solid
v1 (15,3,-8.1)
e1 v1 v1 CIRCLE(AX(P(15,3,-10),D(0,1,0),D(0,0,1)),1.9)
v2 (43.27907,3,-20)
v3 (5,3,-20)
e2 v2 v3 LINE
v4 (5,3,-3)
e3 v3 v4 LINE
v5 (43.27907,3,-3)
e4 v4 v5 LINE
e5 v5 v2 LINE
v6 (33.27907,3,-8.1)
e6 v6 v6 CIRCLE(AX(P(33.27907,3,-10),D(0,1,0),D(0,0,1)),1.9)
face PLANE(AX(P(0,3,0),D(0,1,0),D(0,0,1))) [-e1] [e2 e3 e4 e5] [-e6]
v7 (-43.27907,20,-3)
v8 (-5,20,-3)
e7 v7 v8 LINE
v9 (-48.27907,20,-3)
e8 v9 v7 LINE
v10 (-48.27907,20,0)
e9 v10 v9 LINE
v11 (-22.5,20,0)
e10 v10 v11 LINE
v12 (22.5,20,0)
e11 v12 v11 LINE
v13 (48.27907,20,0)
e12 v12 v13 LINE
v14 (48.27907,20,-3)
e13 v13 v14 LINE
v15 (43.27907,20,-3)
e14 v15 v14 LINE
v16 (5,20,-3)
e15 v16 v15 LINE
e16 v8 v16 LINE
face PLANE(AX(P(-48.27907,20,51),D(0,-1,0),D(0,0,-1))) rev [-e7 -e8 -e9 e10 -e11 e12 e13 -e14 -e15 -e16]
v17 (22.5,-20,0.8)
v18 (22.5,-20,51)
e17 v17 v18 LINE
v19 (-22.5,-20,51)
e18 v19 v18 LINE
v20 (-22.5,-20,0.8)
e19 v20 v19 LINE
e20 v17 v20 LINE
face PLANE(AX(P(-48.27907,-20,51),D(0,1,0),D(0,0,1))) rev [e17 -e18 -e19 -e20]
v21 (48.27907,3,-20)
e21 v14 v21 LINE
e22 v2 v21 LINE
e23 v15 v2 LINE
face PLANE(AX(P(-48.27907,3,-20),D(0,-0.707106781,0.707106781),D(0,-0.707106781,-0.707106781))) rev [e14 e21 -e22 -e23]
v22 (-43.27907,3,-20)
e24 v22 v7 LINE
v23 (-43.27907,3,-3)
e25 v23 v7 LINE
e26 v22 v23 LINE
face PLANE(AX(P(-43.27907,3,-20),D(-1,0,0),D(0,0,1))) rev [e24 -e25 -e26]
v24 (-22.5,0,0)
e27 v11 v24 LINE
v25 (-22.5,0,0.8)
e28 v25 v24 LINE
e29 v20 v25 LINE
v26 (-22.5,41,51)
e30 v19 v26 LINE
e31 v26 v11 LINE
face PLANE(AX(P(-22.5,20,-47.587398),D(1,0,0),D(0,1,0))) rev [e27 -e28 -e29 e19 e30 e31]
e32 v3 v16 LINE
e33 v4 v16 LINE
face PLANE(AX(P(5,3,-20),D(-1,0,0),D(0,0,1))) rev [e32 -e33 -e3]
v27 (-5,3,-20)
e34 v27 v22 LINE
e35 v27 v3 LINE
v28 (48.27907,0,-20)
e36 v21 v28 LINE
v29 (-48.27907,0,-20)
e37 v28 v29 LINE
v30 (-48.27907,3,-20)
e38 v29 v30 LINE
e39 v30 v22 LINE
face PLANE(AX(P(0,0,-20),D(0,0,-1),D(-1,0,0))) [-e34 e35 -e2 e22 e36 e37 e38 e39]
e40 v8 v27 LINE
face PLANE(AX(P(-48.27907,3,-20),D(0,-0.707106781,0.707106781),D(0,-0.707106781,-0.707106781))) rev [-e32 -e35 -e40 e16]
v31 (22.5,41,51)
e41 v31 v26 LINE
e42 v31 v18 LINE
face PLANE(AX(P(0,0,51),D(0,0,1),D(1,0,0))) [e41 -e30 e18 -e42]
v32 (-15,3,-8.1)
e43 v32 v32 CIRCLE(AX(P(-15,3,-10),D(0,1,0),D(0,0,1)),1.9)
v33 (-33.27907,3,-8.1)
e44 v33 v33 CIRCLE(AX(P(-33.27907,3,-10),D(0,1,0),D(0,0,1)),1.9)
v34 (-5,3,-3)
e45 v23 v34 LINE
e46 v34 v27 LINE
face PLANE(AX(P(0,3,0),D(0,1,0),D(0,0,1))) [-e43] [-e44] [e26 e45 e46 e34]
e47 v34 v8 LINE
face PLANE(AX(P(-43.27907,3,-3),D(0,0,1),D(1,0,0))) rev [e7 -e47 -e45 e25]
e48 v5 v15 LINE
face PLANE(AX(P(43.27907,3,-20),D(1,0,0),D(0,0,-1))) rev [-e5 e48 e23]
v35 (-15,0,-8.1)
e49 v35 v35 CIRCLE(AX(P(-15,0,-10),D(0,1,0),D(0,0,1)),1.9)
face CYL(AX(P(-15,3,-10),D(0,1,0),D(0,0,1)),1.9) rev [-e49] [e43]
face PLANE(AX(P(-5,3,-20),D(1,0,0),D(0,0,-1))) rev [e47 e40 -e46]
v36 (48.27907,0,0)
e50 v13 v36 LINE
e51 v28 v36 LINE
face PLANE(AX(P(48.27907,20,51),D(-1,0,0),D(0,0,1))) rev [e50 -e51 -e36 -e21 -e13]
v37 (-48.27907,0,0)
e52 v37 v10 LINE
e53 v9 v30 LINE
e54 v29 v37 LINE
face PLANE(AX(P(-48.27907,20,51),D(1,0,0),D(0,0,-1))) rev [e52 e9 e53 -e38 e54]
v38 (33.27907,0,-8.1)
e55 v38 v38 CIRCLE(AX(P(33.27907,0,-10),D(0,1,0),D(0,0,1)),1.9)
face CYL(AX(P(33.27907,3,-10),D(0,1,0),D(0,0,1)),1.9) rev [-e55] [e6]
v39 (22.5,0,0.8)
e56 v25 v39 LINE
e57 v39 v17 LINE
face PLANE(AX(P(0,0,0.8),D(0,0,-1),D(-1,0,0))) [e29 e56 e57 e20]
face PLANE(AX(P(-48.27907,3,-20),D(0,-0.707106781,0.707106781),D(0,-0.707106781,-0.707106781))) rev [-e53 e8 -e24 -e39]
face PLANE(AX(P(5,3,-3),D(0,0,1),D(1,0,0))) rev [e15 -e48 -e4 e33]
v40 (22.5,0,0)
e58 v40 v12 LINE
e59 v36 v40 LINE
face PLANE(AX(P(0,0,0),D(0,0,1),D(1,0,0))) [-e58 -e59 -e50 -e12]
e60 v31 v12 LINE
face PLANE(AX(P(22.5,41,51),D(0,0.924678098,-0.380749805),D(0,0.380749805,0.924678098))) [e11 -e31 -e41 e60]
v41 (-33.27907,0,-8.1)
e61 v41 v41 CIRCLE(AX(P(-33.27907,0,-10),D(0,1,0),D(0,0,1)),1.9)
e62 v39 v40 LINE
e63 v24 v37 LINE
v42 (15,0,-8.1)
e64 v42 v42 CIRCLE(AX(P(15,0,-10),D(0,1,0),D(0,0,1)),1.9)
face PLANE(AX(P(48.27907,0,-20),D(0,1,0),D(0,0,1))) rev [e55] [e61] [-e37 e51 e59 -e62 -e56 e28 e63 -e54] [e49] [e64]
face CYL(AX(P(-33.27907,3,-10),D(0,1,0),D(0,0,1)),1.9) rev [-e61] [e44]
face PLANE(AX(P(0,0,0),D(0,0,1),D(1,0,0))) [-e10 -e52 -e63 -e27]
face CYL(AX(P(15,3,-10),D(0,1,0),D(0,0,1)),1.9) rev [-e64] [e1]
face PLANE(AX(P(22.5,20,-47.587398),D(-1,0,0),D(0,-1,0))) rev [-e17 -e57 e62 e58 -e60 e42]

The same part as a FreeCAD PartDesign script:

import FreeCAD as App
import Part
import Sketcher

V = App.Vector
Q = App.Units.Quantity


def add_polygon(sketch, points):
    """Adds a closed chain of lines whose ends are joined by coincident constraints."""
    first, n = sketch.GeometryCount, len(points)
    for a, b in zip(points, points[1:] + points[:1]):
        sketch.addGeometry(Part.LineSegment(App.Vector(*a, 0), App.Vector(*b, 0)), False)
    for i in range(n):
        sketch.addConstraint(Sketcher.Constraint("Coincident", first + i, 2, first + (i + 1) % n, 1))

doc = App.newDocument("Part")
params = doc.addObject("Spreadsheet::Sheet", "Params")
for row, (alias, value) in enumerate([
    ("sketch1_height", "40 mm"),
    ("pad1_length", "51 mm"),
    ("sketch2_height", "20 mm"),
    ("pad2_length", "20 mm"),
    ("sketch3_height", "17 mm"),
    ("pocket1_length", "17 mm"),
    ("sketch4_width", "17 mm"),
    ("sketch5_diameter", "3.8 mm"),
    ("hole_diameter", "3.8 mm"),
    ("hole_depth", "10.1 mm"),
    ("sketch6_height", "40 mm"),
    ("pocket3_length", "51 mm"),
    ("sketch7_width", "21 mm"),
    ("sketch7_height", "51 mm"),
    ("pad3_length", "45 mm"),
    ("sketch8_width", "45 mm"),
    ("sketch8_height", "20 mm"),
    ("pocket4_length", "0.8 mm"),
], start=1):
    params.set(f"A{row}", alias)
    params.set(f"B{row}", "=" + value)
    params.setAlias(f"B{row}", alias)

body = doc.addObject("PartDesign::Body", "Body")

sketch1 = doc.addObject("Sketcher::SketchObject", "Sketch")
body.addObject(sketch1)
sketch1.AttachmentSupport = (doc.XY_Plane, [""])
sketch1.MapMode = "FlatFace"
add_polygon(sketch1, [(-48, 20), (-48, -20), (48, -20), (48, 20)])
sketch1.addConstraint(Sketcher.Constraint("Vertical", 0))
sketch1.addConstraint(Sketcher.Constraint("Horizontal", 1))
sketch1.addConstraint(Sketcher.Constraint("Vertical", 2))
sketch1.addConstraint(Sketcher.Constraint("Horizontal", 3))
sketch1.addConstraint(Sketcher.Constraint("Symmetric", 0, 2, 2, 2, -1, 1))
sketch1.addConstraint(Sketcher.Constraint("DistanceY", 0, 2, 0, 1, Q("40 mm")))
sketch1.addConstraint(Sketcher.Constraint("DistanceX", 1, 1, 1, 2, Q("96.55814 mm")))
sketch1.setExpression("Constraints[9]", "Params.sketch1_height")
pad1 = doc.addObject("PartDesign::Pad", "Pad")
body.addObject(pad1)
pad1.Profile = sketch1
pad1.setExpression("Length", "Params.pad1_length")

sketch2 = doc.addObject("Sketcher::SketchObject", "Sketch001")
body.addObject(sketch2)
sketch2.AttachmentSupport = (doc.XY_Plane, [""])
sketch2.MapMode = "FlatFace"
add_polygon(sketch2, [(48, 20), (48, 0), (-48, 0), (-48, 20)])
sketch2.addConstraint(Sketcher.Constraint("Vertical", 0))
sketch2.addConstraint(Sketcher.Constraint("Horizontal", 1))
sketch2.addConstraint(Sketcher.Constraint("Vertical", 2))
sketch2.addConstraint(Sketcher.Constraint("Horizontal", 3))
sketch2.addConstraint(Sketcher.Constraint("Symmetric", 0, 2, 1, 2, -1, 1))
sketch2.addConstraint(Sketcher.Constraint("DistanceY", 0, 2, 0, 1, Q("20 mm")))
sketch2.addConstraint(Sketcher.Constraint("DistanceX", 1, 2, 1, 1, Q("96.55814 mm")))
sketch2.setExpression("Constraints[9]", "Params.sketch2_height")
pad2 = doc.addObject("PartDesign::Pad", "Pad001")
body.addObject(pad2)
pad2.Profile = sketch2
pad2.setExpression("Length", "Params.pad2_length")
pad2.Reversed = True

sketch3 = doc.addObject("Sketcher::SketchObject", "Sketch002")
body.addObject(sketch3)
sketch3.AttachmentSupport = (doc.XZ_Plane, [""])
sketch3.MapMode = "FlatFace"
sketch3.AttachmentOffset = App.Placement(V(0, 0, -20), App.Rotation())
add_polygon(sketch3, [(-43, -20), (-43, -3), (-5, -3), (-5, -20)])
add_polygon(sketch3, [(5, -20), (5, -3), (43, -3), (43, -20)])
sketch3.addConstraint(Sketcher.Constraint("Vertical", 0))
sketch3.addConstraint(Sketcher.Constraint("Horizontal", 1))
sketch3.addConstraint(Sketcher.Constraint("Vertical", 2))
sketch3.addConstraint(Sketcher.Constraint("Horizontal", 3))
sketch3.addConstraint(Sketcher.Constraint("Vertical", 4))
sketch3.addConstraint(Sketcher.Constraint("Horizontal", 5))
sketch3.addConstraint(Sketcher.Constraint("Vertical", 6))
sketch3.addConstraint(Sketcher.Constraint("Horizontal", 7))
sketch3.addConstraint(Sketcher.Constraint("Symmetric", 1, 2, 4, 2, -2))
sketch3.addConstraint(Sketcher.Constraint("Symmetric", 3, 2, 6, 2, -2))
sketch3.addConstraint(Sketcher.Constraint("DistanceY", 0, 1, 0, 2, Q("17 mm")))
sketch3.addConstraint(Sketcher.Constraint("DistanceY", 0, 2, -1, 1, Q("3 mm")))
sketch3.addConstraint(Sketcher.Constraint("DistanceX", 1, 2, -1, 1, Q("5 mm")))
sketch3.addConstraint(Sketcher.Constraint("DistanceX", 1, 1, 1, 2, Q("38.27907 mm")))
sketch3.setExpression("Constraints[18]", "Params.sketch3_height")
pocket1 = doc.addObject("PartDesign::Pocket", "Pocket")
body.addObject(pocket1)
pocket1.Profile = sketch3
pocket1.setExpression("Length", "Params.pocket1_length")
pocket1.Reversed = True

sketch4 = doc.addObject("Sketcher::SketchObject", "Sketch003")
body.addObject(sketch4)
sketch4.AttachmentSupport = (doc.YZ_Plane, [""])
sketch4.MapMode = "FlatFace"
sketch4.AttachmentOffset = App.Placement(V(0, 0, 48.27907), App.Rotation())
add_polygon(sketch4, [(20, -20), (20, -3), (3, -20)])
sketch4.addConstraint(Sketcher.Constraint("Vertical", 0))
sketch4.addConstraint(Sketcher.Constraint("Horizontal", 2))
sketch4.addConstraint(Sketcher.Constraint("Equal", 2, 0))
sketch4.addConstraint(Sketcher.Constraint("DistanceX", 2, 1, 2, 2, Q("17 mm")))
sketch4.addConstraint(Sketcher.Constraint("DistanceX", -1, 1, 0, 2, Q("20 mm")))
sketch4.addConstraint(Sketcher.Constraint("DistanceY", 0, 2, -1, 1, Q("3 mm")))
sketch4.setExpression("Constraints[6]", "Params.sketch4_width")
pocket2 = doc.addObject("PartDesign::Pocket", "Pocket001")
body.addObject(pocket2)
pocket2.Profile = sketch4
pocket2.Type = "ThroughAll"

sketch5 = doc.addObject("Sketcher::SketchObject", "Sketch004")
body.addObject(sketch5)
sketch5.AttachmentSupport = (doc.XZ_Plane, [""])
sketch5.MapMode = "FlatFace"
sketch5.AttachmentOffset = App.Placement(V(0, 0, -3), App.Rotation())
sketch5.addGeometry(Part.Circle(V(-33.3, -10, 0), V(0, 0, 1), 1.9), False)
sketch5.addGeometry(Part.Circle(V(-15, -10, 0), V(0, 0, 1), 1.9), False)
sketch5.addGeometry(Part.Circle(V(15, -10, 0), V(0, 0, 1), 1.9), False)
sketch5.addGeometry(Part.Circle(V(33.3, -10, 0), V(0, 0, 1), 1.9), False)
sketch5.addConstraint(Sketcher.Constraint("Equal", 0, 1))
sketch5.addConstraint(Sketcher.Constraint("Equal", 1, 2))
sketch5.addConstraint(Sketcher.Constraint("Equal", 2, 3))
sketch5.addConstraint(Sketcher.Constraint("Symmetric", 1, 3, 2, 3, -2))
sketch5.addConstraint(Sketcher.Constraint("Symmetric", 0, 3, 3, 3, -2))
sketch5.addConstraint(Sketcher.Constraint("Horizontal", 0, 3, 1, 3))
sketch5.addConstraint(Sketcher.Constraint("Diameter", 0, Q("3.8 mm")))
sketch5.addConstraint(Sketcher.Constraint("DistanceY", 0, 3, -1, 1, Q("10 mm")))
sketch5.addConstraint(Sketcher.Constraint("DistanceX", 1, 3, -1, 1, Q("15 mm")))
sketch5.addConstraint(Sketcher.Constraint("DistanceX", 0, 3, -1, 1, Q("33.27907 mm")))
sketch5.setExpression("Constraints[6]", "Params.sketch5_diameter")
doc.recompute()
hole = doc.addObject("PartDesign::Hole", "Hole")
body.addObject(hole)
hole.Profile = sketch5
hole.ThreadType = "None"
hole.setExpression("Diameter", "Params.hole_diameter")
hole.DepthType = "Dimension"
hole.setExpression("Depth", "Params.hole_depth")
hole.DrillPoint = "Angled"
hole.DrillPointAngle = 118
hole.Reversed = True

sketch6 = doc.addObject("Sketcher::SketchObject", "Sketch005")
body.addObject(sketch6)
sketch6.AttachmentSupport = (doc.XY_Plane, [""])
sketch6.MapMode = "FlatFace"
sketch6.AttachmentOffset = App.Placement(V(0, 0, 51), App.Rotation())
add_polygon(sketch6, [(-48, 20), (-48, -20), (-23, -20), (-23, 20)])
add_polygon(sketch6, [(23, 20), (23, -20), (48, -20), (48, 20)])
sketch6.addConstraint(Sketcher.Constraint("Vertical", 0))
sketch6.addConstraint(Sketcher.Constraint("Horizontal", 1))
sketch6.addConstraint(Sketcher.Constraint("Vertical", 2))
sketch6.addConstraint(Sketcher.Constraint("Horizontal", 3))
sketch6.addConstraint(Sketcher.Constraint("Vertical", 4))
sketch6.addConstraint(Sketcher.Constraint("Horizontal", 5))
sketch6.addConstraint(Sketcher.Constraint("Vertical", 6))
sketch6.addConstraint(Sketcher.Constraint("Horizontal", 7))
sketch6.addConstraint(Sketcher.Constraint("Symmetric", 2, 2, 4, 2, -1, 1))
sketch6.addConstraint(Sketcher.Constraint("Symmetric", 0, 2, 6, 2, -1, 1))
sketch6.addConstraint(Sketcher.Constraint("Horizontal", 1, 2, 4, 2))
sketch6.addConstraint(Sketcher.Constraint("DistanceY", 0, 2, 0, 1, Q("40 mm")))
sketch6.addConstraint(Sketcher.Constraint("DistanceX", 1, 2, 4, 2, Q("45 mm")))
sketch6.addConstraint(Sketcher.Constraint("DistanceX", 1, 1, 1, 2, Q("25.77907 mm")))
sketch6.setExpression("Constraints[19]", "Params.sketch6_height")
pocket3 = doc.addObject("PartDesign::Pocket", "Pocket002")
body.addObject(pocket3)
pocket3.Profile = sketch6
pocket3.setExpression("Length", "Params.pocket3_length")

sketch7 = doc.addObject("Sketcher::SketchObject", "Sketch006")
body.addObject(sketch7)
sketch7.AttachmentSupport = (doc.YZ_Plane, [""])
sketch7.MapMode = "FlatFace"
sketch7.AttachmentOffset = App.Placement(V(0, 0, 22.5), App.Rotation())
add_polygon(sketch7, [(20, 51), (41, 51), (20, 0)])
sketch7.addConstraint(Sketcher.Constraint("Horizontal", 0))
sketch7.addConstraint(Sketcher.Constraint("Vertical", 2))
sketch7.addConstraint(Sketcher.Constraint("PointOnObject", 1, 2, -1))
sketch7.addConstraint(Sketcher.Constraint("DistanceX", 0, 1, 0, 2, Q("21 mm")))
sketch7.addConstraint(Sketcher.Constraint("DistanceY", 2, 1, 2, 2, Q("51 mm")))
sketch7.addConstraint(Sketcher.Constraint("DistanceX", -1, 1, 0, 2, Q("41 mm")))
sketch7.setExpression("Constraints[6]", "Params.sketch7_width")
sketch7.setExpression("Constraints[7]", "Params.sketch7_height")
pad3 = doc.addObject("PartDesign::Pad", "Pad002")
body.addObject(pad3)
pad3.Profile = sketch7
pad3.setExpression("Length", "Params.pad3_length")
pad3.Reversed = True

sketch8 = doc.addObject("Sketcher::SketchObject", "Sketch007")
body.addObject(sketch8)
sketch8.AttachmentSupport = (doc.XY_Plane, [""])
sketch8.MapMode = "FlatFace"
add_polygon(sketch8, [(22, 0), (22, -20), (-22, -20), (-22, 0)])
sketch8.addConstraint(Sketcher.Constraint("Vertical", 0))
sketch8.addConstraint(Sketcher.Constraint("Horizontal", 1))
sketch8.addConstraint(Sketcher.Constraint("Vertical", 2))
sketch8.addConstraint(Sketcher.Constraint("Horizontal", 3))
sketch8.addConstraint(Sketcher.Constraint("Symmetric", 2, 2, 3, 2, -1, 1))
sketch8.addConstraint(Sketcher.Constraint("DistanceX", 1, 2, 1, 1, Q("45 mm")))
sketch8.addConstraint(Sketcher.Constraint("DistanceY", 0, 2, 0, 1, Q("20 mm")))
sketch8.setExpression("Constraints[9]", "Params.sketch8_width")
sketch8.setExpression("Constraints[10]", "Params.sketch8_height")
pocket4 = doc.addObject("PartDesign::Pocket", "Pocket003")
body.addObject(pocket4)
pocket4.Profile = sketch8
pocket4.setExpression("Length", "Params.pocket4_length")
pocket4.Reversed = True

doc.recompute()
